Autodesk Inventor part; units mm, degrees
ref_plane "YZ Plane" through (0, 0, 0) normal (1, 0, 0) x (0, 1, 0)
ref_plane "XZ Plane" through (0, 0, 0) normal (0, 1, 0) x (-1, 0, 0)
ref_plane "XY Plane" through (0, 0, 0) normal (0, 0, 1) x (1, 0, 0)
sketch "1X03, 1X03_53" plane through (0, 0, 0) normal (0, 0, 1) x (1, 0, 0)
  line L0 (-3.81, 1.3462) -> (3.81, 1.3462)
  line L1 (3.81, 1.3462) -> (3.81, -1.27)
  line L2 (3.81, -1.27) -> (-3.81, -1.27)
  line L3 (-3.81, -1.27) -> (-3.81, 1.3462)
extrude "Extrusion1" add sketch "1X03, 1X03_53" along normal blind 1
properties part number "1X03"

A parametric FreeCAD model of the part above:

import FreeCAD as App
import Part
import Sketcher
Q = App.Units.Quantity

doc = App.newDocument("Part")
params = doc.addObject("Spreadsheet::Sheet", "Params")
for row, (alias, value) in enumerate([
    ("sketch1_width", "0.3 in"),
    ("sketch1_height", "0.103 in"),
    ("pad1_length", "1 mm"),
], start=1):
    params.set(f"A{row}", alias)
    params.set(f"B{row}", "=" + value)
    params.setAlias(f"B{row}", alias)

body = doc.addObject("PartDesign::Body", "Body")

sketch1 = body.newObject("Sketcher::SketchObject", "Sketch")
sketch1.AttachmentSupport = (doc.getObject("XY_Plane"), [""])
sketch1.MapMode = "FlatFace"
sketch1.addGeometry([
    Part.LineSegment(App.Vector(3.8, 1.3, 0), App.Vector(-3.8, 1.3, 0)),
    Part.LineSegment(App.Vector(-3.8, 1.3, 0), App.Vector(-3.8, -1.3, 0)),
    Part.LineSegment(App.Vector(-3.8, -1.3, 0), App.Vector(3.8, -1.3, 0)),
    Part.LineSegment(App.Vector(3.8, -1.3, 0), App.Vector(3.8, 1.3, 0)),
], False)
sketch1.addConstraint([
    Sketcher.Constraint("Coincident", 0, 2, 1, 1),
    Sketcher.Constraint("Coincident", 1, 2, 2, 1),
    Sketcher.Constraint("Coincident", 2, 2, 3, 1),
    Sketcher.Constraint("Coincident", 3, 2, 0, 1),
    Sketcher.Constraint("Horizontal", 0),
    Sketcher.Constraint("Vertical", 1),
    Sketcher.Constraint("Horizontal", 2),
    Sketcher.Constraint("Vertical", 3),
    Sketcher.Constraint("DistanceX", 0, 2, 0, 1, Q("0.3 in")),
    Sketcher.Constraint("DistanceY", 1, 2, 1, 1, Q("0.103 in")),
    Sketcher.Constraint("DistanceX", 0, 2, -1, 1, Q("0.15 in")),
    Sketcher.Constraint("DistanceY", 1, 2, -1, 1, Q("0.05 in")),
])
sketch1.setExpression("Constraints[8]", "Params.sketch1_width")
sketch1.setExpression("Constraints[9]", "Params.sketch1_height")
pad1 = body.newObject("PartDesign::Pad", "Pad")
pad1.Profile = sketch1
pad1.setExpression("Length", "Params.pad1_length")

doc.recompute()
